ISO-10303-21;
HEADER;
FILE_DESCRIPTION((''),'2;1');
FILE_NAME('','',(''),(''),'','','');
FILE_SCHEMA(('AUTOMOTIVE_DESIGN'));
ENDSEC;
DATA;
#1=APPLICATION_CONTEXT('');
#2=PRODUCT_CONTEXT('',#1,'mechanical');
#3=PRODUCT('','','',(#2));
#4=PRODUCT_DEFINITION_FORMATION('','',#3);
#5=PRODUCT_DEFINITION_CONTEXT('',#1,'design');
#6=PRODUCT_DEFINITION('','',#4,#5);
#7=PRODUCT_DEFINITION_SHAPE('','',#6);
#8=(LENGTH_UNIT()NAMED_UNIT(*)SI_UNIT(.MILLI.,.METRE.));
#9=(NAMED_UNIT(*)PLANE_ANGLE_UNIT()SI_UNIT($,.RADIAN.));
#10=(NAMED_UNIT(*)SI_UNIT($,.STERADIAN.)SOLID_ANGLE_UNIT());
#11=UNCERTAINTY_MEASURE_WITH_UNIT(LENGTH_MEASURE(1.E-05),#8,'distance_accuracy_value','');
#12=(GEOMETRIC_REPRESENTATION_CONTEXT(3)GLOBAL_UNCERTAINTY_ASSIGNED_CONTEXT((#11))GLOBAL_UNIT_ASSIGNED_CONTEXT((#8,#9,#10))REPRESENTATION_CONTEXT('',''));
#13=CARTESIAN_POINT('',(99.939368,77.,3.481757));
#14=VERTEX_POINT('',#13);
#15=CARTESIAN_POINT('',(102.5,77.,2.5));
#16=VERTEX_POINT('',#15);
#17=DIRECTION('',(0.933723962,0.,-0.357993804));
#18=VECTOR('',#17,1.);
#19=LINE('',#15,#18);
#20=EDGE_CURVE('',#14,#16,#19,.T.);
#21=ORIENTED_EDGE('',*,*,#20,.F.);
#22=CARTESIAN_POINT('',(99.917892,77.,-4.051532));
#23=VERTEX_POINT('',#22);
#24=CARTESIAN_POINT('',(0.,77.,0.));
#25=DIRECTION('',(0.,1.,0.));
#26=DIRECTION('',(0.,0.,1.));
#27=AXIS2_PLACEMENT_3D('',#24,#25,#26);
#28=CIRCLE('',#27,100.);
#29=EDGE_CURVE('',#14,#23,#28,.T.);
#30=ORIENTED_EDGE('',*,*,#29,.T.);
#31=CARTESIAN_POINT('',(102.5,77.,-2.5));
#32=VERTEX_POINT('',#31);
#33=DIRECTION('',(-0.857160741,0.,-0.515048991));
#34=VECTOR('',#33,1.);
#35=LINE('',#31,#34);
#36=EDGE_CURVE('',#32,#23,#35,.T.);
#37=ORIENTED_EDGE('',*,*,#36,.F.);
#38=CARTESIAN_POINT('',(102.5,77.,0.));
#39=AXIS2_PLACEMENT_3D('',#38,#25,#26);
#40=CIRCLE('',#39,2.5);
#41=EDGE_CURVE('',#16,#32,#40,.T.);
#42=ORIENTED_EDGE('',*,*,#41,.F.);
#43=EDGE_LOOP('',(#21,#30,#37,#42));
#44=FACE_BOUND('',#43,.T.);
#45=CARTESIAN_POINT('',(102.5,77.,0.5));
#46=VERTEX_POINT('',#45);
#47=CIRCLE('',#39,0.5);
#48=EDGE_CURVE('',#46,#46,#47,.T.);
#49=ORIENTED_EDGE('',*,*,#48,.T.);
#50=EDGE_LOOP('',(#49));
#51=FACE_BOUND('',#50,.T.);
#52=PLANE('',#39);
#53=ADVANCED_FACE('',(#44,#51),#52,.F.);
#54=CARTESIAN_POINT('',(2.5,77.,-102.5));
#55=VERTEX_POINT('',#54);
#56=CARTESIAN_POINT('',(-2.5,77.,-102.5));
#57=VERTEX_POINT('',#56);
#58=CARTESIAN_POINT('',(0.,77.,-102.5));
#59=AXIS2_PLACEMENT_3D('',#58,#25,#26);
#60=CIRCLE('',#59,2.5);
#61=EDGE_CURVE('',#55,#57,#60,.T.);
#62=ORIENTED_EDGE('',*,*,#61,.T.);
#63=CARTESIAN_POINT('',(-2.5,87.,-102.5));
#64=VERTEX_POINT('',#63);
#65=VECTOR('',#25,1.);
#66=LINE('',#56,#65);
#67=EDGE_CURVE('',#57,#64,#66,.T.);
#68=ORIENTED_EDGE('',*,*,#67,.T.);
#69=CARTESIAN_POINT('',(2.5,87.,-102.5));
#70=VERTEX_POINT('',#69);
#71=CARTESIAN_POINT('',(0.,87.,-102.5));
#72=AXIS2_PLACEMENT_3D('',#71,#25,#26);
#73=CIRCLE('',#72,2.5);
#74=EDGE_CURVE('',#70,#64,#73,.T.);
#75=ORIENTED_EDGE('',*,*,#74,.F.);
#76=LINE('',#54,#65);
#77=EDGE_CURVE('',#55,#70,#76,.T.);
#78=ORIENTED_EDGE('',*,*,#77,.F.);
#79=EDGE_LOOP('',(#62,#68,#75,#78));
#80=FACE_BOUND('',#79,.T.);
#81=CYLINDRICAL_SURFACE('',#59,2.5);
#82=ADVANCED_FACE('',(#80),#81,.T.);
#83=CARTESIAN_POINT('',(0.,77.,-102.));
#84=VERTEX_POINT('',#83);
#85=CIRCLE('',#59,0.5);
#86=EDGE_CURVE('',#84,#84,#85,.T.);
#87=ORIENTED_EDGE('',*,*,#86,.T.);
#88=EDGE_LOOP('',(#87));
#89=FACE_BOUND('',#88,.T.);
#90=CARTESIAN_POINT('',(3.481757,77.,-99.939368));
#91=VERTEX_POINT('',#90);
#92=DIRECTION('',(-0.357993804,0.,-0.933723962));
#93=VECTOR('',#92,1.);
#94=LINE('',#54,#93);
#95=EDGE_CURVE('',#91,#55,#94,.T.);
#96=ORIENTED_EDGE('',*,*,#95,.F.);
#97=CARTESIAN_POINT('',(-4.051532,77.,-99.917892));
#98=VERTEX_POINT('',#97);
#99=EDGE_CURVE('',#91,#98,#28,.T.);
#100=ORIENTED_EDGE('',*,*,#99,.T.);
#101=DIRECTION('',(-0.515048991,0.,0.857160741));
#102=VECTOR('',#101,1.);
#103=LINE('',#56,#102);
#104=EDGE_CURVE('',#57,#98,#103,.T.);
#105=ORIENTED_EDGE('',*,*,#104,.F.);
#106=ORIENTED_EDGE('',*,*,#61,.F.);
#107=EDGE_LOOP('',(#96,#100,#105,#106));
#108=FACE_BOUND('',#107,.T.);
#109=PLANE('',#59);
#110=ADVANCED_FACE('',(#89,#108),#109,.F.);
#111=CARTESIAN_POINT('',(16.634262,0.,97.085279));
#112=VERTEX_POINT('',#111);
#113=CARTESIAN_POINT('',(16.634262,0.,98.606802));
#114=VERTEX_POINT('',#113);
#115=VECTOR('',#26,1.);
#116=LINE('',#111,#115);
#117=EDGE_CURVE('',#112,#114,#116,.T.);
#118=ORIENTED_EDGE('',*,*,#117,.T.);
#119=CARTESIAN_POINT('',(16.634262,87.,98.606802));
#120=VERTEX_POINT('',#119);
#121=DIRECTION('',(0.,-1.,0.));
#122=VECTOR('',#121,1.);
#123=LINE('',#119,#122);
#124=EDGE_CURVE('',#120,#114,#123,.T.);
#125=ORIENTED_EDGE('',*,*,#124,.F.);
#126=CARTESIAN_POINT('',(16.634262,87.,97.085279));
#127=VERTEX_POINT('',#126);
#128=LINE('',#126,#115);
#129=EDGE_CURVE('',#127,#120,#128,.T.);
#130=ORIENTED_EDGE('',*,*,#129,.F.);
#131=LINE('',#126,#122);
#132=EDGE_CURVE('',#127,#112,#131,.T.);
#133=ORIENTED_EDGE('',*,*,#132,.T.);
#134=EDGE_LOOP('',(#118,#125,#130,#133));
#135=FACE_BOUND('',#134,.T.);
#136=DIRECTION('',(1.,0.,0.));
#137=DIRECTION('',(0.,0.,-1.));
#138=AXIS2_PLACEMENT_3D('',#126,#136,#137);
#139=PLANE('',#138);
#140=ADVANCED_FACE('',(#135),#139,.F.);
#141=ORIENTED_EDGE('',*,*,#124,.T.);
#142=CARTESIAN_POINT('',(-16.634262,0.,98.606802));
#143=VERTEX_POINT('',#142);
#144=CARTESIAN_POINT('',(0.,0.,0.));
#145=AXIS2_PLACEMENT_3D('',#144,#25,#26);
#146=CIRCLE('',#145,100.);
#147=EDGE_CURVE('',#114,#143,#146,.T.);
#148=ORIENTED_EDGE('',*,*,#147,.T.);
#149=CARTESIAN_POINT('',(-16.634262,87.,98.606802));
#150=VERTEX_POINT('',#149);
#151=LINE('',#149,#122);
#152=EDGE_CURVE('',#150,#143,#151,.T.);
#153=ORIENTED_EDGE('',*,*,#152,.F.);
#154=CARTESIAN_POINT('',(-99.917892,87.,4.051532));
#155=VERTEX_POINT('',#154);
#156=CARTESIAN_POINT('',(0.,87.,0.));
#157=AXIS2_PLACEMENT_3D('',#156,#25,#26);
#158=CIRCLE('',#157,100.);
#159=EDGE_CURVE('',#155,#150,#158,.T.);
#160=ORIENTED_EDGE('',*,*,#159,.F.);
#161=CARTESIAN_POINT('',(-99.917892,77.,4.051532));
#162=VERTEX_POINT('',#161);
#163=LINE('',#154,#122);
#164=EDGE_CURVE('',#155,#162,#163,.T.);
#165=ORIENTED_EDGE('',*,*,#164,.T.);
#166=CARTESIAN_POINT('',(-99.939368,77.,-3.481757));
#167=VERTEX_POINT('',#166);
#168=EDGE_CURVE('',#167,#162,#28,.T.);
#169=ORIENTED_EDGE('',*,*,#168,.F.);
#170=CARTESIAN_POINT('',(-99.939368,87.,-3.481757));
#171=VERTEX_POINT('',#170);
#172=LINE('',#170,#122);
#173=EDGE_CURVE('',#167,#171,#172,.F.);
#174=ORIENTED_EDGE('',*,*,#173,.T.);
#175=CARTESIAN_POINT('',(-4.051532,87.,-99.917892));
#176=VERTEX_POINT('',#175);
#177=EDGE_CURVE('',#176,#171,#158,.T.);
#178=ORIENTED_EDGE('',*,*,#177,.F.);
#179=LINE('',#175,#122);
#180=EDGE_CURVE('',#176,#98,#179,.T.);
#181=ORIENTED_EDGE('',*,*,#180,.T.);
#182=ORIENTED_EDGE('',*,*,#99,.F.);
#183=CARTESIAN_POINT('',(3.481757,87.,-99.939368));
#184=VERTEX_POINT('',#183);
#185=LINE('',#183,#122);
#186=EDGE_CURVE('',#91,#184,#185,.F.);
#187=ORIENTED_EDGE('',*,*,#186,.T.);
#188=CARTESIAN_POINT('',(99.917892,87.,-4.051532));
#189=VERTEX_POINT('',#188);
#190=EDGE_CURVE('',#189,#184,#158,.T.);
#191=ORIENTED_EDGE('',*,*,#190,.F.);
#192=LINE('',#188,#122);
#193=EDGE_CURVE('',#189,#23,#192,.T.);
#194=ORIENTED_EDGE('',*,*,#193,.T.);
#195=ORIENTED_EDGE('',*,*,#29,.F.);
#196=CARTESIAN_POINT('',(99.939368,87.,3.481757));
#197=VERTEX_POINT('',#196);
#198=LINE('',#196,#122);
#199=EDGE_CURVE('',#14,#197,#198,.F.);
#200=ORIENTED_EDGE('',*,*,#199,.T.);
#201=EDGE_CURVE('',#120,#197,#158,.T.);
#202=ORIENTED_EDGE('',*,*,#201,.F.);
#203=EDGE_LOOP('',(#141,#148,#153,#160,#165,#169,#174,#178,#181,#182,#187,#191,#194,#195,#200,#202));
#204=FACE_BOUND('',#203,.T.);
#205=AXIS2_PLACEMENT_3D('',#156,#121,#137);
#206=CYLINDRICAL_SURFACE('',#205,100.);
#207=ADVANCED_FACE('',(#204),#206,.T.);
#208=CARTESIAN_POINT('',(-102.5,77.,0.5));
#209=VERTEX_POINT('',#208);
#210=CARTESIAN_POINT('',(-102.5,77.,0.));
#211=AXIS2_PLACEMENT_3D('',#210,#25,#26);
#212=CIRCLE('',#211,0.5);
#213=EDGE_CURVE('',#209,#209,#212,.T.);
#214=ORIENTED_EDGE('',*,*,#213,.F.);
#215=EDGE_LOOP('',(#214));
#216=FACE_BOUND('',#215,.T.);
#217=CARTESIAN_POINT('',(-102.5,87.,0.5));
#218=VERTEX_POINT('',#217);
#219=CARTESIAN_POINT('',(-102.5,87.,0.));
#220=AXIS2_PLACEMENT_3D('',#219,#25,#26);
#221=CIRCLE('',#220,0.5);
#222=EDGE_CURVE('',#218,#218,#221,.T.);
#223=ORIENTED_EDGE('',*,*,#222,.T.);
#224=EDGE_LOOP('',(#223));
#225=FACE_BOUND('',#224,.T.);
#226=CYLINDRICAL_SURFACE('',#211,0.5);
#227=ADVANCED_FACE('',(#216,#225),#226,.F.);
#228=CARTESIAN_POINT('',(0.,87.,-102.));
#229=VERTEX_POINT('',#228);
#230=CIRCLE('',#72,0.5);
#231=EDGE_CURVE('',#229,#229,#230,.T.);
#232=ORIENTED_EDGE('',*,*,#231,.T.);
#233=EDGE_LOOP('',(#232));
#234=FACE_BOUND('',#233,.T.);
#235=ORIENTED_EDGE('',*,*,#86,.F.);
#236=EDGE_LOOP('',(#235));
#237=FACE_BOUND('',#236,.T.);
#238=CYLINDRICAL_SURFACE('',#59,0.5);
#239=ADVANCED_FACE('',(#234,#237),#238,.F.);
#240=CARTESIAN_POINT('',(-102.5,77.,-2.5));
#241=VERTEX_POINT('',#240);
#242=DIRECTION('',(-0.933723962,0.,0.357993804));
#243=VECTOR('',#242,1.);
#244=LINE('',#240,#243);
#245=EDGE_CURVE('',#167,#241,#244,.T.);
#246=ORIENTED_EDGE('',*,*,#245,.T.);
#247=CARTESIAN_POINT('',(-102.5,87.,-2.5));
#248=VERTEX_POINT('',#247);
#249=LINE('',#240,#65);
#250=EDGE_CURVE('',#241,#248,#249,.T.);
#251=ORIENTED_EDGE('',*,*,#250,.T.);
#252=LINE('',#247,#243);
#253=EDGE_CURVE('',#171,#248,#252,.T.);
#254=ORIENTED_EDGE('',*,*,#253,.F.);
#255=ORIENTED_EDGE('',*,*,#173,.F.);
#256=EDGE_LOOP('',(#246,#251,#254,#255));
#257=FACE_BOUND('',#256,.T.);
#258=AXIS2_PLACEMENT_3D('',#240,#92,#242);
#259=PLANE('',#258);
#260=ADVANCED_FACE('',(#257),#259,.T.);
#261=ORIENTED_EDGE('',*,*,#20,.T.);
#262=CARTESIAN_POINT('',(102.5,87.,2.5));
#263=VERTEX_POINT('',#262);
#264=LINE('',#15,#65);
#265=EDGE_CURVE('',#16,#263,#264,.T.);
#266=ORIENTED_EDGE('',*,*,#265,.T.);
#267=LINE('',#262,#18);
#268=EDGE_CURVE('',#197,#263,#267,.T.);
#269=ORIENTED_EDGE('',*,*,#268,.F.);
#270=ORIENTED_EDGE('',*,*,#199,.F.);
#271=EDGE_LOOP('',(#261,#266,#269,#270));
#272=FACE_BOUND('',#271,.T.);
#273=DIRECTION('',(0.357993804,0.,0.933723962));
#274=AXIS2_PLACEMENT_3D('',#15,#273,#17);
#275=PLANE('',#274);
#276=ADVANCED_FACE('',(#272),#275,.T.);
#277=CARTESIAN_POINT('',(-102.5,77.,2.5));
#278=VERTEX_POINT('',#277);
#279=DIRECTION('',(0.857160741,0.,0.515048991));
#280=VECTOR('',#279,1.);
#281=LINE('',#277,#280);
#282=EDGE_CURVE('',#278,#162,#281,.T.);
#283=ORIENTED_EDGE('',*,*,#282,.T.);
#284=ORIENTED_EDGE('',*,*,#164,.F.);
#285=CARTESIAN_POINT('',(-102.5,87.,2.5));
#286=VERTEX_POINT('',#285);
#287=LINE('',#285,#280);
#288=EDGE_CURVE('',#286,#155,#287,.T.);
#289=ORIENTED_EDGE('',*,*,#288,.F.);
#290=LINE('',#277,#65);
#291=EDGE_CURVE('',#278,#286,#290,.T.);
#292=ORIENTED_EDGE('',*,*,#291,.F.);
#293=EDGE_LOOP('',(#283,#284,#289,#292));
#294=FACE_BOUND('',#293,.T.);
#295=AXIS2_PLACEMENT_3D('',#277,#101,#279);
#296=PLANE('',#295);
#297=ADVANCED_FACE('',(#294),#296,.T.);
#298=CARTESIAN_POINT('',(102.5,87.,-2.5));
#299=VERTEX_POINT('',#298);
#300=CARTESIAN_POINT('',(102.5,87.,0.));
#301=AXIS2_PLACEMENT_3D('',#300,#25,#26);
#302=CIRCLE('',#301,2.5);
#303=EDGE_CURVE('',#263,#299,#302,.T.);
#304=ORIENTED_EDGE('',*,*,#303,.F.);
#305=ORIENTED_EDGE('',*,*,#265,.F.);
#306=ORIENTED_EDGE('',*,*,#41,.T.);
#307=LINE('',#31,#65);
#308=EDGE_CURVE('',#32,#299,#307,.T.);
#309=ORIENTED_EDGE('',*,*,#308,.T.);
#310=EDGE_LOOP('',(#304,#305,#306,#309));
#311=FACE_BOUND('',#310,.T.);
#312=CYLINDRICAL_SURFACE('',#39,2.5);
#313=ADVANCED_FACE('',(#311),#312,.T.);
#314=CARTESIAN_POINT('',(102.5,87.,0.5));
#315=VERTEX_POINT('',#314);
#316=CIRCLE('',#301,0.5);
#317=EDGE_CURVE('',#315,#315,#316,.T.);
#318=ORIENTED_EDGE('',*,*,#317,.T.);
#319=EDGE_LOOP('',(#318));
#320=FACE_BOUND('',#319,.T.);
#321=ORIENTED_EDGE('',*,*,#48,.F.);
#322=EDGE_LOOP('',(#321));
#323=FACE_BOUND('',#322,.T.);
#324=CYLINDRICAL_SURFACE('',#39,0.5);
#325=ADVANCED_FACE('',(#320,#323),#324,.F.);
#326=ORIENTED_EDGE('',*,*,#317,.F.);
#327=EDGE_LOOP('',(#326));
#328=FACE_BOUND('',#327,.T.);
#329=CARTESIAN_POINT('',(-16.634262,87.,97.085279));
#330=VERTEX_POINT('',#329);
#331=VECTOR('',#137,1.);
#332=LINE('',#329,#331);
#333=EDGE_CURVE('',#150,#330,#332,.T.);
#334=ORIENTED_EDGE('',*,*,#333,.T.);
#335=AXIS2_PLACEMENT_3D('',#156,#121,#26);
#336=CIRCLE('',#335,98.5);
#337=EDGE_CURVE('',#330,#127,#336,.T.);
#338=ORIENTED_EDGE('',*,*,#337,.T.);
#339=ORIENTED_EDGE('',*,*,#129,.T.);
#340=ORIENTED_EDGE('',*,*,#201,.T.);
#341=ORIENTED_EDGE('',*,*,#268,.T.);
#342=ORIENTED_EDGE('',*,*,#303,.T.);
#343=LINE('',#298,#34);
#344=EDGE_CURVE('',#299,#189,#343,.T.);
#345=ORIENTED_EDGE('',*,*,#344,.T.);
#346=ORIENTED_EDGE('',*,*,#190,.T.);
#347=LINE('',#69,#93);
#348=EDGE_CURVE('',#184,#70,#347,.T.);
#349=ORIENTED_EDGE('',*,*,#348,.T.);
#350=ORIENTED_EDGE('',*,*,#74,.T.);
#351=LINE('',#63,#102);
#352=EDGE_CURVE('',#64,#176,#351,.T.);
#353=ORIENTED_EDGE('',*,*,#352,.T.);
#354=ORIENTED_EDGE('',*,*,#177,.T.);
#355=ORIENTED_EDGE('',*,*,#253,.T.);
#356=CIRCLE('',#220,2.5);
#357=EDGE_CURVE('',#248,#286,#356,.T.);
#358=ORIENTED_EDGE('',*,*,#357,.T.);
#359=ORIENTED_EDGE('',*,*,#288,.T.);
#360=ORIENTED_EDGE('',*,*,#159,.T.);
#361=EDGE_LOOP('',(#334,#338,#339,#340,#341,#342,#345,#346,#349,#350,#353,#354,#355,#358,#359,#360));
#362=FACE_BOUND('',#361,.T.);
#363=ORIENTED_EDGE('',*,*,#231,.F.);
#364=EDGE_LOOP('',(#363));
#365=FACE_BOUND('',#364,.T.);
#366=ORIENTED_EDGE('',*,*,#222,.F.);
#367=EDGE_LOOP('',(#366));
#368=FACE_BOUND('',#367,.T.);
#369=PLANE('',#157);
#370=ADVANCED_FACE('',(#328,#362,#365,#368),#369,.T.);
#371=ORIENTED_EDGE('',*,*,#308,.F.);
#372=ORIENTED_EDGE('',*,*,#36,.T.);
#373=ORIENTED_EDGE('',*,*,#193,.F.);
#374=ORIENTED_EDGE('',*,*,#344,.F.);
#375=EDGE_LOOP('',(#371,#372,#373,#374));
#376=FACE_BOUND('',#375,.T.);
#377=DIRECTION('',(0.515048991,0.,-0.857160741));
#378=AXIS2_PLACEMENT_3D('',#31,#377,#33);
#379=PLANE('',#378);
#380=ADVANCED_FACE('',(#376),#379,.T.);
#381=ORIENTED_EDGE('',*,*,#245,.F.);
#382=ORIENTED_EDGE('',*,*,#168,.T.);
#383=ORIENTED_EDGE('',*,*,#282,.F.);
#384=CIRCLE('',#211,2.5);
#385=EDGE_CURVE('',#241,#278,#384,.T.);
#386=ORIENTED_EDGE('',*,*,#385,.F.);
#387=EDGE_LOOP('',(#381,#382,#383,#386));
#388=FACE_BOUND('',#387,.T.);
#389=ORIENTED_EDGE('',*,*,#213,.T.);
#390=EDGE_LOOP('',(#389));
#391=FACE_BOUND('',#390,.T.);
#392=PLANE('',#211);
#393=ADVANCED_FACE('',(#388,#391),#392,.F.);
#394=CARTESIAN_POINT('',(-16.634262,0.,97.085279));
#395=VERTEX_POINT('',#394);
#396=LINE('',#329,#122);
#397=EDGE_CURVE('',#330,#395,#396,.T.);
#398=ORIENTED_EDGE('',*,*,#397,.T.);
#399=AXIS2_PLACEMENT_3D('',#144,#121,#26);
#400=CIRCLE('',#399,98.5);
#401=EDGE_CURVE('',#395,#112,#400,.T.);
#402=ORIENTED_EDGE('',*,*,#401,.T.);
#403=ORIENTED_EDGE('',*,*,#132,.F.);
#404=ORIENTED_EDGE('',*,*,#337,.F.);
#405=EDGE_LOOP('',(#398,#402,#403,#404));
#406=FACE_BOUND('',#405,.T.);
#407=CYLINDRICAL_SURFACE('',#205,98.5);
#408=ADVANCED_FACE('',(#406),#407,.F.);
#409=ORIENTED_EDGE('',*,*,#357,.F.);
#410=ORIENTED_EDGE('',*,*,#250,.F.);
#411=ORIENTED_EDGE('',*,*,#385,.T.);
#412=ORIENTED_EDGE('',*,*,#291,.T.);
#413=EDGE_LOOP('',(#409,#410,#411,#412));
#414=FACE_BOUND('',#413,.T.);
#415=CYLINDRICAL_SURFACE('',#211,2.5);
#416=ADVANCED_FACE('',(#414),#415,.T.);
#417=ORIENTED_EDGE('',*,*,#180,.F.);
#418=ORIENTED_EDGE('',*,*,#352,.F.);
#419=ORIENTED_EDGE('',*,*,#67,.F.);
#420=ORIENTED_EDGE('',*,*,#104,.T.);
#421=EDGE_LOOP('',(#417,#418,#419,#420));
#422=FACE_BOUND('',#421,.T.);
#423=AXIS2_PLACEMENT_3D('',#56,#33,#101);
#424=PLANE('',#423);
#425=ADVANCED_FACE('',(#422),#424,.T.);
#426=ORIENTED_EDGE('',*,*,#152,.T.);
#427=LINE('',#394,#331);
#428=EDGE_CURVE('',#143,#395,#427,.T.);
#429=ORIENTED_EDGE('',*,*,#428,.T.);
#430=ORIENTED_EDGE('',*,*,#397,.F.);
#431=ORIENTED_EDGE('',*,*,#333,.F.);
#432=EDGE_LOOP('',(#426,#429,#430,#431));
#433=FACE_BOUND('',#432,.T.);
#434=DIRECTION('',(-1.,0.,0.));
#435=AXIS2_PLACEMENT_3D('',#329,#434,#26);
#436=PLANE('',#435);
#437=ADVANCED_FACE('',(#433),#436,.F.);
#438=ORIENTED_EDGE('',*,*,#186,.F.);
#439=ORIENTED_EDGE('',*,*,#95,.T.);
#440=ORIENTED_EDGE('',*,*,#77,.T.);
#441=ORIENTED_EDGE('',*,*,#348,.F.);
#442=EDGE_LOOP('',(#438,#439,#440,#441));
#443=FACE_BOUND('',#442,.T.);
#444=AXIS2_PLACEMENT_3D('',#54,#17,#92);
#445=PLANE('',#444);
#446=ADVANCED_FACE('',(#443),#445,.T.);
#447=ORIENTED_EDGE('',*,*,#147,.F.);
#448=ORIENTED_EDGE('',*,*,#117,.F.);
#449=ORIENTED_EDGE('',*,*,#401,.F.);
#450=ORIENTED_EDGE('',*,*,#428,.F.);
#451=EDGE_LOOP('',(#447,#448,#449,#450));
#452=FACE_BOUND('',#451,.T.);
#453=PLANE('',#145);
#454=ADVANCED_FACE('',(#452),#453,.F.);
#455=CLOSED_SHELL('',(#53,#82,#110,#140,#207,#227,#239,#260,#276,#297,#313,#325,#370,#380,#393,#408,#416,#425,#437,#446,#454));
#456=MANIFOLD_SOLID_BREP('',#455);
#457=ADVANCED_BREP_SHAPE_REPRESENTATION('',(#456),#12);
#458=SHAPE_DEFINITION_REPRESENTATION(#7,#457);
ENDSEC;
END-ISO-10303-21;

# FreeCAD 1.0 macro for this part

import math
import FreeCAD as App
import Part
import Sketcher
from FreeCAD import Vector
Q = App.Units.Quantity

doc = App.newDocument("Part")
body = doc.addObject("PartDesign::Body", "Body")

sketch1 = body.newObject("Sketcher::SketchObject", "Sketch")
sketch1.AttachmentSupport = (doc.getObject("XZ_Plane"), [""])
sketch1.MapMode = "FlatFace"
sketch1.addGeometry([
    Part.LineSegment(Vector(-16.634262, 98.606802, 0), Vector(-16.634262, 97.085279, 0)),
    Part.ArcOfCircle(Part.Circle(Vector(0, 0, 0), Vector(0, 0, 1), 98.5), math.radians(99.72246), math.radians(440.27754)),
    Part.LineSegment(Vector(16.634262, 97.085279, 0), Vector(16.634262, 98.606802, 0)),
    Part.ArcOfCircle(Part.Circle(Vector(0, 0, 0), Vector(0, 0, 1), 100), math.radians(99.575239), math.radians(440.424761)),
], False)
sketch1.addConstraint([
    Sketcher.Constraint("Coincident", 0, 2, 1, 1),
    Sketcher.Constraint("Coincident", 1, 2, 2, 1),
    Sketcher.Constraint("Coincident", 2, 2, 3, 2),
    Sketcher.Constraint("Coincident", 3, 1, 0, 1),
    Sketcher.Constraint("Vertical", 0),
    Sketcher.Constraint("Vertical", 2),
    Sketcher.Constraint("Coincident", 1, 3, -1, 1),
    Sketcher.Constraint("Coincident", 3, 3, -1, 1),
    Sketcher.Constraint("Horizontal", 0, 2, 1, 2),
    Sketcher.Constraint("Radius", 3, Q("100 mm")),
    Sketcher.Constraint("Radius", 1, Q("98.5 mm")),
    Sketcher.Constraint("DistanceY", -1, 1, 2, 2, Q("98.606802 mm")),
])
pad1 = body.newObject("PartDesign::Pad", "Pad")
pad1.Profile = sketch1
pad1.Length = 87
pad1.Reversed = True

sketch2 = body.newObject("Sketcher::SketchObject", "Sketch001")
sketch2.AttachmentSupport = (doc.getObject("XZ_Plane"), [""])
sketch2.MapMode = "FlatFace"
sketch2.AttachmentOffset = App.Placement(Vector(0, 0, -87), App.Rotation())
sketch2.addGeometry([
    Part.LineSegment(Vector(-102.5, 2.5, 0), Vector(-99.33644, 4.400913, 0)),
    Part.LineSegment(Vector(-99.33644, 4.400913, 0), Vector(-99.185512, -3.770789, 0)),
    Part.LineSegment(Vector(-99.185512, -3.770789, 0), Vector(-102.5, -2.5, 0)),
    Part.ArcOfCircle(Part.Circle(Vector(-102.5, 0, 0), Vector(0, 0, 1), 2.5), math.radians(90), math.radians(270)),
    Part.Circle(Vector(-102.5, 0, 0), Vector(0, 0, 1), 0.5),
    Part.LineSegment(Vector(-2.5, -102.5, 0), Vector(-4.400913, -99.33644, 0)),
    Part.LineSegment(Vector(-4.400913, -99.33644, 0), Vector(3.770789, -99.185512, 0)),
    Part.LineSegment(Vector(3.770789, -99.185512, 0), Vector(2.5, -102.5, 0)),
    Part.ArcOfCircle(Part.Circle(Vector(0, -102.5, 0), Vector(0, 0, 1), 2.5), math.radians(180), math.radians(360)),
    Part.Circle(Vector(0, -102.5, 0), Vector(0, 0, 1), 0.5),
    Part.LineSegment(Vector(102.5, -2.5, 0), Vector(99.33644, -4.400913, 0)),
    Part.LineSegment(Vector(99.33644, -4.400913, 0), Vector(99.185512, 3.770789, 0)),
    Part.LineSegment(Vector(99.185512, 3.770789, 0), Vector(102.5, 2.5, 0)),
    Part.ArcOfCircle(Part.Circle(Vector(102.5, 0, 0), Vector(0, 0, 1), 2.5), math.radians(-90), math.radians(90)),
    Part.Circle(Vector(102.5, 0, 0), Vector(0, 0, 1), 0.5),
], False)
sketch2.addConstraint([
    Sketcher.Constraint("Coincident", 0, 2, 1, 1),
    Sketcher.Constraint("Coincident", 1, 2, 2, 1),
    Sketcher.Constraint("Coincident", 2, 2, 3, 2),
    Sketcher.Constraint("Coincident", 3, 1, 0, 1),
    Sketcher.Constraint("Coincident", 5, 2, 6, 1),
    Sketcher.Constraint("Coincident", 6, 2, 7, 1),
    Sketcher.Constraint("Coincident", 7, 2, 8, 2),
    Sketcher.Constraint("Coincident", 8, 1, 5, 1),
    Sketcher.Constraint("Coincident", 10, 2, 11, 1),
    Sketcher.Constraint("Coincident", 11, 2, 12, 1),
    Sketcher.Constraint("Coincident", 12, 2, 13, 2),
    Sketcher.Constraint("Coincident", 13, 1, 10, 1),
    Sketcher.Constraint("Coincident", 4, 3, 3, 3),
    Sketcher.Constraint("Coincident", 9, 3, 8, 3),
    Sketcher.Constraint("Coincident", 14, 3, 13, 3),
    Sketcher.Constraint("Equal", 3, 8),
    Sketcher.Constraint("Equal", 4, 9),
    Sketcher.Constraint("Equal", 8, 13),
    Sketcher.Constraint("Equal", 9, 14),
    Sketcher.Constraint("Symmetric", 3, 3, 13, 3, -1, 1),
    Sketcher.Constraint("Symmetric", 0, 2, 10, 2, -1, 1),
    Sketcher.Constraint("Symmetric", 1, 2, 11, 2, -1, 1),
    Sketcher.Constraint("Symmetric", 7, 2, 8, 1, -2),
    Sketcher.Constraint("Symmetric", 3, 1, 12, 2, -2),
    Sketcher.Constraint("Perpendicular", 0, 5),
    Sketcher.Constraint("Perpendicular", 1, 6),
    Sketcher.Constraint("Perpendicular", 2, 7),
    Sketcher.Constraint("Perpendicular", 5, 10),
    Sketcher.Constraint("Perpendicular", 7, 12),
    Sketcher.Constraint("Horizontal", 9, 3, 7, 2),
    Sketcher.Constraint("Vertical", 4, 3, 2, 2),
    Sketcher.Constraint("Equal", 0, 5),
    Sketcher.Constraint("Diameter", 4, Q("1 mm")),
    Sketcher.Constraint("Radius", 3, Q("2.5 mm")),
    Sketcher.Constraint("DistanceX", 3, 3, 13, 3, Q("205 mm")),
    Sketcher.Constraint("DistanceY", 8, 3, 2, 2, Q("100 mm")),
    Sketcher.Constraint("DistanceX", 1, 2, 5, 2, Q("94.784598 mm")),
    Sketcher.Constraint("DistanceY", 6, 2, 11, 2, Q("102.956301 mm")),
    Sketcher.Constraint("Distance", 2, Q("3.549752 mm")),
    Sketcher.Constraint("DistanceX", 0, 2, -1, 1, Q("99.33644 mm")),
])
pad2 = body.newObject("PartDesign::Pad", "Pad001")
pad2.Profile = sketch2
pad2.Length = 10

doc.recompute()
